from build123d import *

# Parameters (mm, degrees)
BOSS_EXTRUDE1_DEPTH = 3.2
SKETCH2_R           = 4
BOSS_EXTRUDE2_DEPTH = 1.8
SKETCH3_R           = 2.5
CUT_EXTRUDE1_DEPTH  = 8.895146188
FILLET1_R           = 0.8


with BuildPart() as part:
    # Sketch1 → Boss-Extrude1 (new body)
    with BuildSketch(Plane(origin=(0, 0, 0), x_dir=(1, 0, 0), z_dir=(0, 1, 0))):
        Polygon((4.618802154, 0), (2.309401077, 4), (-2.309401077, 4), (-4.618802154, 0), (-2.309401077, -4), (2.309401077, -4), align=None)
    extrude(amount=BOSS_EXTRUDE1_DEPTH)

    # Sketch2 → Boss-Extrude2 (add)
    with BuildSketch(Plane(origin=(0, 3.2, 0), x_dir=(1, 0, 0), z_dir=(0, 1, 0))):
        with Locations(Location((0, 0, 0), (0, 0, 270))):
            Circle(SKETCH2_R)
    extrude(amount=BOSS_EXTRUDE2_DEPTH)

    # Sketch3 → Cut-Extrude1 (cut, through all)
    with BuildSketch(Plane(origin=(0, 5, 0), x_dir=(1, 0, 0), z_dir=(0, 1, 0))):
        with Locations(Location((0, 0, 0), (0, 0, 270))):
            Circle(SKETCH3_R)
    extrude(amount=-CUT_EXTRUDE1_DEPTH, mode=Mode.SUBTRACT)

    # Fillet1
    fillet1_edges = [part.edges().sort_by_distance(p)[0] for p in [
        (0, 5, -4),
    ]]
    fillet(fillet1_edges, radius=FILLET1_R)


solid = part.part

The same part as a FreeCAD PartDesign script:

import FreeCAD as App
import Part
import Sketcher
from FreeCAD import Vector
Q = App.Units.Quantity


def edges_at(feature, points):
    """Names of the edges that pass closest to the given points."""
    edges = feature.Shape.Edges
    near = lambda p: min(range(len(edges)), key=lambda i: edges[i].distToShape(Part.Vertex(*p))[0])
    return sorted({f"Edge{near(p) + 1}" for p in points})

doc = App.newDocument("Part")
params = doc.addObject("Spreadsheet::Sheet", "Params")
for row, (alias, value) in enumerate([
    ("pad1_length", "3.2 mm"),
    ("sketch2_diameter", "8 mm"),
    ("pad2_length", "1.8 mm"),
    ("sketch3_diameter", "5 mm"),
    ("fillet_radius", "0.8 mm"),
], start=1):
    params.set(f"A{row}", alias)
    params.set(f"B{row}", "=" + value)
    params.setAlias(f"B{row}", alias)

body = doc.addObject("PartDesign::Body", "Body")

sketch1 = doc.addObject("Sketcher::SketchObject", "Sketch")
body.addObject(sketch1)
sketch1.AttachmentSupport = (doc.XZ_Plane, [""])
sketch1.MapMode = "FlatFace"
sketch1.addGeometry(Part.LineSegment(Vector(4.618802, 0, 0), Vector(2.309401, -4, 0)), False)
sketch1.addGeometry(Part.LineSegment(Vector(2.309401, -4, 0), Vector(-2.309401, -4, 0)), False)
sketch1.addGeometry(Part.LineSegment(Vector(-2.309401, -4, 0), Vector(-4.618802, 0, 0)), False)
sketch1.addGeometry(Part.LineSegment(Vector(-4.618802, 0, 0), Vector(-2.309401, 4, 0)), False)
sketch1.addGeometry(Part.LineSegment(Vector(-2.309401, 4, 0), Vector(2.309401, 4, 0)), False)
sketch1.addGeometry(Part.LineSegment(Vector(2.309401, 4, 0), Vector(4.618802, 0, 0)), False)
sketch1.addConstraint(Sketcher.Constraint("Coincident", 0, 2, 1, 1))
sketch1.addConstraint(Sketcher.Constraint("Coincident", 1, 2, 2, 1))
sketch1.addConstraint(Sketcher.Constraint("Coincident", 2, 2, 3, 1))
sketch1.addConstraint(Sketcher.Constraint("Coincident", 3, 2, 4, 1))
sketch1.addConstraint(Sketcher.Constraint("Coincident", 4, 2, 5, 1))
sketch1.addConstraint(Sketcher.Constraint("Coincident", 5, 2, 0, 1))
sketch1.addConstraint(Sketcher.Constraint("Horizontal", 1))
sketch1.addConstraint(Sketcher.Constraint("Horizontal", 4))
sketch1.addConstraint(Sketcher.Constraint("Symmetric", 0, 2, 3, 2, -1, 1))
sketch1.addConstraint(Sketcher.Constraint("Symmetric", 2, 2, 5, 2, -1, 1))
sketch1.addConstraint(Sketcher.Constraint("PointOnObject", 2, 2, -1))
sketch1.addConstraint(Sketcher.Constraint("Parallel", 2, 5))
sketch1.addConstraint(Sketcher.Constraint("Vertical", 1, 2, 3, 2))
sketch1.addConstraint(Sketcher.Constraint("Angle", 0, Q("-120 deg")))
sketch1.addConstraint(Sketcher.Constraint("DistanceY", 0, 2, -1, 1, 4.0))
sketch1.addConstraint(Sketcher.Constraint("DistanceX", -1, 1, 0, 2, 2.309401))
pad1 = doc.addObject("PartDesign::Pad", "Pad")
body.addObject(pad1)
pad1.Profile = sketch1
pad1.setExpression("Length", "Params.pad1_length")
pad1.Reversed = True

sketch2 = doc.addObject("Sketcher::SketchObject", "Sketch001")
body.addObject(sketch2)
sketch2.AttachmentSupport = (doc.XZ_Plane, [""])
sketch2.MapMode = "FlatFace"
sketch2.AttachmentOffset = App.Placement(Vector(0, 0, -3.2), App.Rotation())
sketch2.addGeometry(Part.Circle(Vector(0, 0, 0), Vector(0, 0, 1), 4), False)
sketch2.addConstraint(Sketcher.Constraint("Coincident", 0, 3, -1, 1))
sketch2.addConstraint(Sketcher.Constraint("Diameter", 0, 8.0))
sketch2.setExpression("Constraints[1]", "Params.sketch2_diameter")
pad2 = doc.addObject("PartDesign::Pad", "Pad001")
body.addObject(pad2)
pad2.Profile = sketch2
pad2.setExpression("Length", "Params.pad2_length")
pad2.Reversed = True

sketch3 = doc.addObject("Sketcher::SketchObject", "Sketch002")
body.addObject(sketch3)
sketch3.AttachmentSupport = (doc.XZ_Plane, [""])
sketch3.MapMode = "FlatFace"
sketch3.AttachmentOffset = App.Placement(Vector(0, 0, -5), App.Rotation())
sketch3.addGeometry(Part.Circle(Vector(0, 0, 0), Vector(0, 0, 1), 2.5), False)
sketch3.addConstraint(Sketcher.Constraint("Coincident", 0, 3, -1, 1))
sketch3.addConstraint(Sketcher.Constraint("Diameter", 0, 5.0))
sketch3.setExpression("Constraints[1]", "Params.sketch3_diameter")
pocket1 = doc.addObject("PartDesign::Pocket", "Pocket")
body.addObject(pocket1)
pocket1.Profile = sketch3
pocket1.Type = "ThroughAll"
pocket1.Reversed = True
doc.recompute()

fillet = doc.addObject("PartDesign::Fillet", "Fillet")
body.addObject(fillet)
fillet.Base = (pocket1, edges_at(pocket1, [(0, 5, -4)]))
fillet.setExpression("Radius", "Params.fillet_radius")

doc.recompute()
